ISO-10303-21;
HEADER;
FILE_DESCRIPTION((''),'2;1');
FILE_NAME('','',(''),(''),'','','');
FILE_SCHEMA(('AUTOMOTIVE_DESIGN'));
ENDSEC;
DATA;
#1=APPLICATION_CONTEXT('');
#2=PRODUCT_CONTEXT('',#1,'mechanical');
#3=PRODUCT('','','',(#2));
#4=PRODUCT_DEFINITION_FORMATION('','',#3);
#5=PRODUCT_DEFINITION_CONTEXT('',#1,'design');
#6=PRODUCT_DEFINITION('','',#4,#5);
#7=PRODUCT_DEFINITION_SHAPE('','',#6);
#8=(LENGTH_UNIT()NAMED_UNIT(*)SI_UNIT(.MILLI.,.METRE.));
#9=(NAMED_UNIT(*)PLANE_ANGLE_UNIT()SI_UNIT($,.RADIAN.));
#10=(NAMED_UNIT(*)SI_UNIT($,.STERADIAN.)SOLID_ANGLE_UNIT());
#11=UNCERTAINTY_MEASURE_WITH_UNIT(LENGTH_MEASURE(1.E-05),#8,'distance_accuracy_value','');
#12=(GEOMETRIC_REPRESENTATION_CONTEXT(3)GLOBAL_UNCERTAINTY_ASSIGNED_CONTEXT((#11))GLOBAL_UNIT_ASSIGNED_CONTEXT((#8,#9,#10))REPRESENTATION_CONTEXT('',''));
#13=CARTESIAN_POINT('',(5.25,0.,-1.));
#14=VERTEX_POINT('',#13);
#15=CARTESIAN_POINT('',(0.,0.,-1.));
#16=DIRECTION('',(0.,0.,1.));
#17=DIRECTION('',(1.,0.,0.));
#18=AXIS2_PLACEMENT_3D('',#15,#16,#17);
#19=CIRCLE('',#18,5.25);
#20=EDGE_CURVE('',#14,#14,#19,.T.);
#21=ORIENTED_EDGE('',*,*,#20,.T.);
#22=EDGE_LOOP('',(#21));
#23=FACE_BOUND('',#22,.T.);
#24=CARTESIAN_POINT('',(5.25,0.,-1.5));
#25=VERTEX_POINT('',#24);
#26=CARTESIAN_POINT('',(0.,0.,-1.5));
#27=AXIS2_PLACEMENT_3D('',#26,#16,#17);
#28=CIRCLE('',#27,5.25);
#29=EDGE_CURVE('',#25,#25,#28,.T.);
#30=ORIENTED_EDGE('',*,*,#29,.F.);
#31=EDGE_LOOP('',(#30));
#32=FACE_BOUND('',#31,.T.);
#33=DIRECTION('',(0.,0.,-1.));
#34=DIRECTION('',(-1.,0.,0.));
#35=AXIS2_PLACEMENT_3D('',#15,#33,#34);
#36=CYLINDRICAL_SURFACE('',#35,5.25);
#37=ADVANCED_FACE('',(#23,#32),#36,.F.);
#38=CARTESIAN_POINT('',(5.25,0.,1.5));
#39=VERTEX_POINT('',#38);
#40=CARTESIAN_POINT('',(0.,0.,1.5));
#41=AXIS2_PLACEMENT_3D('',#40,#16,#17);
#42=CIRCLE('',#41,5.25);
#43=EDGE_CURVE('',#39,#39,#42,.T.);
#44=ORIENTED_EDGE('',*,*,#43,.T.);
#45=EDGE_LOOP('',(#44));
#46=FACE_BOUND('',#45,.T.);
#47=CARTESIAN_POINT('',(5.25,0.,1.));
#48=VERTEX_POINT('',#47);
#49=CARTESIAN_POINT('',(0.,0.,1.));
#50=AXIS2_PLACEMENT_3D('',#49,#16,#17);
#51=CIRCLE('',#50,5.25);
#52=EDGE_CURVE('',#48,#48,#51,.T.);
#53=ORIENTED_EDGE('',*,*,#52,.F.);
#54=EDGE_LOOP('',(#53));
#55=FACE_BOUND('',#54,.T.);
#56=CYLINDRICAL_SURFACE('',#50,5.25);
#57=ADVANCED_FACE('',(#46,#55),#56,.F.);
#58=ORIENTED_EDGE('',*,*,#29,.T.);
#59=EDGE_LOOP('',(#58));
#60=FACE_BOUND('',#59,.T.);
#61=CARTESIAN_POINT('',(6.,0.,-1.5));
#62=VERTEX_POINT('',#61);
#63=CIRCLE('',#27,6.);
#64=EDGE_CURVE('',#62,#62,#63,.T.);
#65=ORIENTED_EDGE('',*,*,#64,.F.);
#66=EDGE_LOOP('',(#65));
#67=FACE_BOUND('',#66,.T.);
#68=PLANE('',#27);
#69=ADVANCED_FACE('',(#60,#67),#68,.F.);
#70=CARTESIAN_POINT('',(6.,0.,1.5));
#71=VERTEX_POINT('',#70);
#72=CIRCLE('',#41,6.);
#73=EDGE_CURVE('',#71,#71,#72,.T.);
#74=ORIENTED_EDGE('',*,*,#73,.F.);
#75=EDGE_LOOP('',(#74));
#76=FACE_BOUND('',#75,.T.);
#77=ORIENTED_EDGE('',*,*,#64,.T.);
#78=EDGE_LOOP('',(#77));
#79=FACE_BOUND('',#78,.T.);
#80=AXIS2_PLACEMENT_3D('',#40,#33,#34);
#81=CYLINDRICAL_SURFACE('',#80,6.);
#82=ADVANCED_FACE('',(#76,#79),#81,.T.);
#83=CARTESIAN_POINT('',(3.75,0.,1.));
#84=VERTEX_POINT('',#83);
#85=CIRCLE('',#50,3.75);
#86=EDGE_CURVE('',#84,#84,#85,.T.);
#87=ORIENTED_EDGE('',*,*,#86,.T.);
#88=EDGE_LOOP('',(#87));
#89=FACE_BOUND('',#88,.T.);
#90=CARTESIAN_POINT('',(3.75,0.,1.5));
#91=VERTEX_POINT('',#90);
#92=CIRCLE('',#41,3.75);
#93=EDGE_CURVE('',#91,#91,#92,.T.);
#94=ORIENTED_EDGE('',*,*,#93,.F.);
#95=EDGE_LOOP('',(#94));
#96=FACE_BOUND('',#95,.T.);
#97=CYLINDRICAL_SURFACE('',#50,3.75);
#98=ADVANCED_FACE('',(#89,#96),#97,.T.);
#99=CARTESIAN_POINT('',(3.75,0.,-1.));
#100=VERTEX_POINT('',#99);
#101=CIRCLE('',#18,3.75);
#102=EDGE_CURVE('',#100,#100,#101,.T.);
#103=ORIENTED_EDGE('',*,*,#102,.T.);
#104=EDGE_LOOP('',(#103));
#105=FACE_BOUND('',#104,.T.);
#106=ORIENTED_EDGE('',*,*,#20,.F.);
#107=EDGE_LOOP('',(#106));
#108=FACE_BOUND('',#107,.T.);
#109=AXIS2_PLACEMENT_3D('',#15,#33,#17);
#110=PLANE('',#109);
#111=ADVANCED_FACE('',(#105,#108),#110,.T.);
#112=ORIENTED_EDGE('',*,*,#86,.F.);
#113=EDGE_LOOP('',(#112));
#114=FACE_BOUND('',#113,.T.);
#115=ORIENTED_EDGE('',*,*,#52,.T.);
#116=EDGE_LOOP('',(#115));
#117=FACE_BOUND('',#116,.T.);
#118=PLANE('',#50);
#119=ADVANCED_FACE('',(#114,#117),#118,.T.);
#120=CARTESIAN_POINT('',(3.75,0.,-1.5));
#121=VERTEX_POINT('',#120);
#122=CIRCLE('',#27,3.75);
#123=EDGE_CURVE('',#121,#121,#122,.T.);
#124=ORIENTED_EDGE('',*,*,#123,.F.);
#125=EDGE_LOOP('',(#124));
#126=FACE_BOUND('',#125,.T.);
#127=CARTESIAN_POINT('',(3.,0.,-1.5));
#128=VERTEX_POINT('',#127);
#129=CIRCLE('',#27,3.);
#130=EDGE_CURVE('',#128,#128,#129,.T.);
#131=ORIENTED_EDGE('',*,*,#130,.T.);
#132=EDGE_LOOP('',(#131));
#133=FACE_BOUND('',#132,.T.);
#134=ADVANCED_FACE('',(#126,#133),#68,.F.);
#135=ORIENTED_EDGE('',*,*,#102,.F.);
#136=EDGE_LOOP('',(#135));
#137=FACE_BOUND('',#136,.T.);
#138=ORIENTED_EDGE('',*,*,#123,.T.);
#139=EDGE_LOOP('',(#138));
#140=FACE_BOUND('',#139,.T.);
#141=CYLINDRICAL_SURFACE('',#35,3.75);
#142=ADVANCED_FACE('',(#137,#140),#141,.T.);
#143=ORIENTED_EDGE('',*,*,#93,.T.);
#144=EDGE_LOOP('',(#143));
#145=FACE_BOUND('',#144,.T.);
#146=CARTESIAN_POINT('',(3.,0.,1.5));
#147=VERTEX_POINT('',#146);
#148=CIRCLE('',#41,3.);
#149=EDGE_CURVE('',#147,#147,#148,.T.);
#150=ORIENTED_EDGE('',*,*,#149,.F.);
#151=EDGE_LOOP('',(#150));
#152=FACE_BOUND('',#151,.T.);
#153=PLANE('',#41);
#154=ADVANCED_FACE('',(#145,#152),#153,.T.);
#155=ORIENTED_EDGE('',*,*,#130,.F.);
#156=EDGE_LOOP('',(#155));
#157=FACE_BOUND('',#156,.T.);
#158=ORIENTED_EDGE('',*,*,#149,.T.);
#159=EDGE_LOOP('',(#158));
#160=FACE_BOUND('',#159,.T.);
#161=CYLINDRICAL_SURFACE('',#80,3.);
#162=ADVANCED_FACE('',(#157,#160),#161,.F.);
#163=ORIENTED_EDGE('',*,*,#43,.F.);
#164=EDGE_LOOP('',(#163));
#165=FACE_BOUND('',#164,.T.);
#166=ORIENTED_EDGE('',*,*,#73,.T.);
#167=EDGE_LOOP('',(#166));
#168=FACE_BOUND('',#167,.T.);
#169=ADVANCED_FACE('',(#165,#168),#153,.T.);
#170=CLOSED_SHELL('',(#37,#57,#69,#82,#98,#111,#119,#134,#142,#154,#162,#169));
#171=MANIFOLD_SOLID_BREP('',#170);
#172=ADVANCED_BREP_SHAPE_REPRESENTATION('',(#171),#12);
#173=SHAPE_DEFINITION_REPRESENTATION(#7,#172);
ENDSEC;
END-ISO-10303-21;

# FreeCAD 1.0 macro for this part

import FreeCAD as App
import Part
import Sketcher
Q = App.Units.Quantity

doc = App.newDocument("Part")
body = doc.addObject("PartDesign::Body", "Body")

sketch1 = body.newObject("Sketcher::SketchObject", "Sketch")
sketch1.AttachmentSupport = (doc.getObject("XY_Plane"), [""])
sketch1.MapMode = "FlatFace"
sketch1.addGeometry([
    Part.Circle(App.Vector(0, 0, 0), App.Vector(0, 0, 1), 6),
    Part.Circle(App.Vector(0, 0, 0), App.Vector(0, 0, 1), 3),
], False)
sketch1.addConstraint([
    Sketcher.Constraint("Coincident", 0, 3, -1, 1),
    Sketcher.Constraint("Coincident", 1, 3, -1, 1),
    Sketcher.Constraint("Diameter", 0, Q("12 mm")),
    Sketcher.Constraint("Diameter", 1, Q("6 mm")),
])
pad1 = body.newObject("PartDesign::Pad", "Pad")
pad1.Profile = sketch1
pad1.Length = 3
pad1.Midplane = True

sketch2 = body.newObject("Sketcher::SketchObject", "Sketch001")
sketch2.AttachmentSupport = (doc.getObject("XY_Plane"), [""])
sketch2.MapMode = "FlatFace"
sketch2.AttachmentOffset = App.Placement(App.Vector(0, 0, 1.5), App.Rotation())
sketch2.addGeometry([
    Part.Circle(App.Vector(0, 0, 0), App.Vector(0, 0, 1), 5.2),
    Part.Circle(App.Vector(0, 0, 0), App.Vector(0, 0, 1), 3.8),
], False)
sketch2.addConstraint([
    Sketcher.Constraint("Coincident", 0, 3, -1, 1),
    Sketcher.Constraint("Coincident", 1, 3, -1, 1),
    Sketcher.Constraint("Diameter", 0, Q("10.5 mm")),
    Sketcher.Constraint("Diameter", 1, Q("7.5 mm")),
])
pocket1 = body.newObject("PartDesign::Pocket", "Pocket")
pocket1.Profile = sketch2
pocket1.Length = 0.5
doc.recompute()

mirrored = body.newObject("PartDesign::Mirrored", "Mirrored")
mirrored.Originals = [pocket1]
mirrored.MirrorPlane = (doc.getObject("XY_Plane"), [""])
body.Tip = mirrored

doc.recompute()
